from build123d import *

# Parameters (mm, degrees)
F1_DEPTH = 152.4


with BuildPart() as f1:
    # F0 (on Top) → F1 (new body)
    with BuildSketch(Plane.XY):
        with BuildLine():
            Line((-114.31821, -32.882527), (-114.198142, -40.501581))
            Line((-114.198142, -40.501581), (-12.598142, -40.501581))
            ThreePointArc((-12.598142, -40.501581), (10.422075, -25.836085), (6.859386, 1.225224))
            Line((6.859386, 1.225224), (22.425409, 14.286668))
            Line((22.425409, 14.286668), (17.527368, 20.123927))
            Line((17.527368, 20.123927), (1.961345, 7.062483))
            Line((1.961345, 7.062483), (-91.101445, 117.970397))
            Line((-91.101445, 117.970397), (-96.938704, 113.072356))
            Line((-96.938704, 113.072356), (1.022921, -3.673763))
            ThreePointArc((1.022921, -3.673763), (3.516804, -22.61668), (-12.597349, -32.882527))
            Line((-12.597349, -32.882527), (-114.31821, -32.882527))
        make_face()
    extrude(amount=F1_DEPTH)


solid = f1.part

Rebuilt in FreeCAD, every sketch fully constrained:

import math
import FreeCAD as App
import Part
import Sketcher
Q = App.Units.Quantity

doc = App.newDocument("Part")
body = doc.addObject("PartDesign::Body", "Body")

# Sketch on XY plane
sketch1 = doc.addObject("Sketcher::SketchObject", "Sketch")
body.addObject(sketch1)
sketch1.AttachmentSupport = (doc.XY_Plane, [""])
sketch1.MapMode = "FlatFace"
sketch1.addGeometry(Part.LineSegment(App.Vector(-114, -33, 0), App.Vector(-114, -41, 0)), False)
sketch1.addGeometry(Part.LineSegment(App.Vector(-114, -41, 0), App.Vector(-13, -41, 0)), False)
sketch1.addGeometry(Part.ArcOfCircle(Part.Circle(App.Vector(-13, -15, 0), App.Vector(0, 0, 1), 25), math.radians(-90), math.radians(40)), False)
sketch1.addGeometry(Part.LineSegment(App.Vector(7, 1, 0), App.Vector(22, 14, 0)), False)
sketch1.addGeometry(Part.LineSegment(App.Vector(22, 14, 0), App.Vector(18, 20, 0)), False)
sketch1.addGeometry(Part.LineSegment(App.Vector(18, 20, 0), App.Vector(2, 7, 0)), False)
sketch1.addGeometry(Part.LineSegment(App.Vector(2, 7, 0), App.Vector(-91, 118, 0)), False)
sketch1.addGeometry(Part.LineSegment(App.Vector(-91, 118, 0), App.Vector(-97, 113, 0)), False)
sketch1.addGeometry(Part.LineSegment(App.Vector(-97, 113, 0), App.Vector(1, -4, 0)), False)
sketch1.addGeometry(Part.ArcOfCircle(Part.Circle(App.Vector(-13, -15, 0), App.Vector(0, 0, 1), 18), math.radians(-90), math.radians(40)), False)
sketch1.addGeometry(Part.LineSegment(App.Vector(-13, -33, 0), App.Vector(-114, -33, 0)), False)
sketch1.addConstraint(Sketcher.Constraint("Coincident", 0, 2, 1, 1))
sketch1.addConstraint(Sketcher.Constraint("Tangent", 1, 2, 2, 1))
sketch1.addConstraint(Sketcher.Constraint("Coincident", 2, 2, 3, 1))
sketch1.addConstraint(Sketcher.Constraint("Coincident", 3, 2, 4, 1))
sketch1.addConstraint(Sketcher.Constraint("Coincident", 4, 2, 5, 1))
sketch1.addConstraint(Sketcher.Constraint("Coincident", 5, 2, 6, 1))
sketch1.addConstraint(Sketcher.Constraint("Coincident", 6, 2, 7, 1))
sketch1.addConstraint(Sketcher.Constraint("Coincident", 7, 2, 8, 1))
sketch1.addConstraint(Sketcher.Constraint("Tangent", 8, 2, 9, 2))
sketch1.addConstraint(Sketcher.Constraint("Tangent", 9, 1, 10, 1))
sketch1.addConstraint(Sketcher.Constraint("Coincident", 10, 2, 0, 1))
sketch1.addConstraint(Sketcher.Constraint("Horizontal", 1))
sketch1.addConstraint(Sketcher.Constraint("Horizontal", 10))
sketch1.addConstraint(Sketcher.Constraint("Perpendicular", 3, 4))
sketch1.addConstraint(Sketcher.Constraint("Perpendicular", 4, 5))
sketch1.addConstraint(Sketcher.Constraint("Perpendicular", 5, 6))
sketch1.addConstraint(Sketcher.Constraint("Perpendicular", 6, 7))
sketch1.addConstraint(Sketcher.Constraint("Perpendicular", 7, 8))
sketch1.addConstraint(Sketcher.Constraint("Equal", 0, 4))
sketch1.addConstraint(Sketcher.Constraint("Equal", 3, 5))
sketch1.addConstraint(Sketcher.Constraint("Equal", 4, 7))
sketch1.addConstraint(Sketcher.Constraint("Radius", 2, Q("1 in")))
sketch1.addConstraint(Sketcher.Constraint("Radius", 9, Q("0.7 in")))
sketch1.addConstraint(Sketcher.Constraint("DistanceX", 1, 1, 1, 2, Q("4 in")))
sketch1.addConstraint(Sketcher.Constraint("Angle", 3, Q("40 deg")))
sketch1.addConstraint(Sketcher.Constraint("Distance", 0, Q("0.3 in")))
sketch1.addConstraint(Sketcher.Constraint("Distance", 3, Q("0.8 in")))
sketch1.addConstraint(Sketcher.Constraint("Distance", 6, Q("5.7 in")))
sketch1.addConstraint(Sketcher.Constraint("DistanceX", 10, 2, 10, 1, Q("101.720861 mm")))
sketch1.addConstraint(Sketcher.Constraint("DistanceY", 2, 3, -1, 1, Q("15.101581 mm")))
sketch1.addConstraint(Sketcher.Constraint("DistanceX", 9, 3, -1, 1, Q("12.597348 mm")))
sketch1.addConstraint(Sketcher.Constraint("DistanceX", -1, 1, 3, 2, Q("22.425409 mm")))
pad1 = doc.addObject("PartDesign::Pad", "Pad")
body.addObject(pad1)
pad1.Profile = sketch1
pad1.Length = Q("6 in")

doc.recompute()
